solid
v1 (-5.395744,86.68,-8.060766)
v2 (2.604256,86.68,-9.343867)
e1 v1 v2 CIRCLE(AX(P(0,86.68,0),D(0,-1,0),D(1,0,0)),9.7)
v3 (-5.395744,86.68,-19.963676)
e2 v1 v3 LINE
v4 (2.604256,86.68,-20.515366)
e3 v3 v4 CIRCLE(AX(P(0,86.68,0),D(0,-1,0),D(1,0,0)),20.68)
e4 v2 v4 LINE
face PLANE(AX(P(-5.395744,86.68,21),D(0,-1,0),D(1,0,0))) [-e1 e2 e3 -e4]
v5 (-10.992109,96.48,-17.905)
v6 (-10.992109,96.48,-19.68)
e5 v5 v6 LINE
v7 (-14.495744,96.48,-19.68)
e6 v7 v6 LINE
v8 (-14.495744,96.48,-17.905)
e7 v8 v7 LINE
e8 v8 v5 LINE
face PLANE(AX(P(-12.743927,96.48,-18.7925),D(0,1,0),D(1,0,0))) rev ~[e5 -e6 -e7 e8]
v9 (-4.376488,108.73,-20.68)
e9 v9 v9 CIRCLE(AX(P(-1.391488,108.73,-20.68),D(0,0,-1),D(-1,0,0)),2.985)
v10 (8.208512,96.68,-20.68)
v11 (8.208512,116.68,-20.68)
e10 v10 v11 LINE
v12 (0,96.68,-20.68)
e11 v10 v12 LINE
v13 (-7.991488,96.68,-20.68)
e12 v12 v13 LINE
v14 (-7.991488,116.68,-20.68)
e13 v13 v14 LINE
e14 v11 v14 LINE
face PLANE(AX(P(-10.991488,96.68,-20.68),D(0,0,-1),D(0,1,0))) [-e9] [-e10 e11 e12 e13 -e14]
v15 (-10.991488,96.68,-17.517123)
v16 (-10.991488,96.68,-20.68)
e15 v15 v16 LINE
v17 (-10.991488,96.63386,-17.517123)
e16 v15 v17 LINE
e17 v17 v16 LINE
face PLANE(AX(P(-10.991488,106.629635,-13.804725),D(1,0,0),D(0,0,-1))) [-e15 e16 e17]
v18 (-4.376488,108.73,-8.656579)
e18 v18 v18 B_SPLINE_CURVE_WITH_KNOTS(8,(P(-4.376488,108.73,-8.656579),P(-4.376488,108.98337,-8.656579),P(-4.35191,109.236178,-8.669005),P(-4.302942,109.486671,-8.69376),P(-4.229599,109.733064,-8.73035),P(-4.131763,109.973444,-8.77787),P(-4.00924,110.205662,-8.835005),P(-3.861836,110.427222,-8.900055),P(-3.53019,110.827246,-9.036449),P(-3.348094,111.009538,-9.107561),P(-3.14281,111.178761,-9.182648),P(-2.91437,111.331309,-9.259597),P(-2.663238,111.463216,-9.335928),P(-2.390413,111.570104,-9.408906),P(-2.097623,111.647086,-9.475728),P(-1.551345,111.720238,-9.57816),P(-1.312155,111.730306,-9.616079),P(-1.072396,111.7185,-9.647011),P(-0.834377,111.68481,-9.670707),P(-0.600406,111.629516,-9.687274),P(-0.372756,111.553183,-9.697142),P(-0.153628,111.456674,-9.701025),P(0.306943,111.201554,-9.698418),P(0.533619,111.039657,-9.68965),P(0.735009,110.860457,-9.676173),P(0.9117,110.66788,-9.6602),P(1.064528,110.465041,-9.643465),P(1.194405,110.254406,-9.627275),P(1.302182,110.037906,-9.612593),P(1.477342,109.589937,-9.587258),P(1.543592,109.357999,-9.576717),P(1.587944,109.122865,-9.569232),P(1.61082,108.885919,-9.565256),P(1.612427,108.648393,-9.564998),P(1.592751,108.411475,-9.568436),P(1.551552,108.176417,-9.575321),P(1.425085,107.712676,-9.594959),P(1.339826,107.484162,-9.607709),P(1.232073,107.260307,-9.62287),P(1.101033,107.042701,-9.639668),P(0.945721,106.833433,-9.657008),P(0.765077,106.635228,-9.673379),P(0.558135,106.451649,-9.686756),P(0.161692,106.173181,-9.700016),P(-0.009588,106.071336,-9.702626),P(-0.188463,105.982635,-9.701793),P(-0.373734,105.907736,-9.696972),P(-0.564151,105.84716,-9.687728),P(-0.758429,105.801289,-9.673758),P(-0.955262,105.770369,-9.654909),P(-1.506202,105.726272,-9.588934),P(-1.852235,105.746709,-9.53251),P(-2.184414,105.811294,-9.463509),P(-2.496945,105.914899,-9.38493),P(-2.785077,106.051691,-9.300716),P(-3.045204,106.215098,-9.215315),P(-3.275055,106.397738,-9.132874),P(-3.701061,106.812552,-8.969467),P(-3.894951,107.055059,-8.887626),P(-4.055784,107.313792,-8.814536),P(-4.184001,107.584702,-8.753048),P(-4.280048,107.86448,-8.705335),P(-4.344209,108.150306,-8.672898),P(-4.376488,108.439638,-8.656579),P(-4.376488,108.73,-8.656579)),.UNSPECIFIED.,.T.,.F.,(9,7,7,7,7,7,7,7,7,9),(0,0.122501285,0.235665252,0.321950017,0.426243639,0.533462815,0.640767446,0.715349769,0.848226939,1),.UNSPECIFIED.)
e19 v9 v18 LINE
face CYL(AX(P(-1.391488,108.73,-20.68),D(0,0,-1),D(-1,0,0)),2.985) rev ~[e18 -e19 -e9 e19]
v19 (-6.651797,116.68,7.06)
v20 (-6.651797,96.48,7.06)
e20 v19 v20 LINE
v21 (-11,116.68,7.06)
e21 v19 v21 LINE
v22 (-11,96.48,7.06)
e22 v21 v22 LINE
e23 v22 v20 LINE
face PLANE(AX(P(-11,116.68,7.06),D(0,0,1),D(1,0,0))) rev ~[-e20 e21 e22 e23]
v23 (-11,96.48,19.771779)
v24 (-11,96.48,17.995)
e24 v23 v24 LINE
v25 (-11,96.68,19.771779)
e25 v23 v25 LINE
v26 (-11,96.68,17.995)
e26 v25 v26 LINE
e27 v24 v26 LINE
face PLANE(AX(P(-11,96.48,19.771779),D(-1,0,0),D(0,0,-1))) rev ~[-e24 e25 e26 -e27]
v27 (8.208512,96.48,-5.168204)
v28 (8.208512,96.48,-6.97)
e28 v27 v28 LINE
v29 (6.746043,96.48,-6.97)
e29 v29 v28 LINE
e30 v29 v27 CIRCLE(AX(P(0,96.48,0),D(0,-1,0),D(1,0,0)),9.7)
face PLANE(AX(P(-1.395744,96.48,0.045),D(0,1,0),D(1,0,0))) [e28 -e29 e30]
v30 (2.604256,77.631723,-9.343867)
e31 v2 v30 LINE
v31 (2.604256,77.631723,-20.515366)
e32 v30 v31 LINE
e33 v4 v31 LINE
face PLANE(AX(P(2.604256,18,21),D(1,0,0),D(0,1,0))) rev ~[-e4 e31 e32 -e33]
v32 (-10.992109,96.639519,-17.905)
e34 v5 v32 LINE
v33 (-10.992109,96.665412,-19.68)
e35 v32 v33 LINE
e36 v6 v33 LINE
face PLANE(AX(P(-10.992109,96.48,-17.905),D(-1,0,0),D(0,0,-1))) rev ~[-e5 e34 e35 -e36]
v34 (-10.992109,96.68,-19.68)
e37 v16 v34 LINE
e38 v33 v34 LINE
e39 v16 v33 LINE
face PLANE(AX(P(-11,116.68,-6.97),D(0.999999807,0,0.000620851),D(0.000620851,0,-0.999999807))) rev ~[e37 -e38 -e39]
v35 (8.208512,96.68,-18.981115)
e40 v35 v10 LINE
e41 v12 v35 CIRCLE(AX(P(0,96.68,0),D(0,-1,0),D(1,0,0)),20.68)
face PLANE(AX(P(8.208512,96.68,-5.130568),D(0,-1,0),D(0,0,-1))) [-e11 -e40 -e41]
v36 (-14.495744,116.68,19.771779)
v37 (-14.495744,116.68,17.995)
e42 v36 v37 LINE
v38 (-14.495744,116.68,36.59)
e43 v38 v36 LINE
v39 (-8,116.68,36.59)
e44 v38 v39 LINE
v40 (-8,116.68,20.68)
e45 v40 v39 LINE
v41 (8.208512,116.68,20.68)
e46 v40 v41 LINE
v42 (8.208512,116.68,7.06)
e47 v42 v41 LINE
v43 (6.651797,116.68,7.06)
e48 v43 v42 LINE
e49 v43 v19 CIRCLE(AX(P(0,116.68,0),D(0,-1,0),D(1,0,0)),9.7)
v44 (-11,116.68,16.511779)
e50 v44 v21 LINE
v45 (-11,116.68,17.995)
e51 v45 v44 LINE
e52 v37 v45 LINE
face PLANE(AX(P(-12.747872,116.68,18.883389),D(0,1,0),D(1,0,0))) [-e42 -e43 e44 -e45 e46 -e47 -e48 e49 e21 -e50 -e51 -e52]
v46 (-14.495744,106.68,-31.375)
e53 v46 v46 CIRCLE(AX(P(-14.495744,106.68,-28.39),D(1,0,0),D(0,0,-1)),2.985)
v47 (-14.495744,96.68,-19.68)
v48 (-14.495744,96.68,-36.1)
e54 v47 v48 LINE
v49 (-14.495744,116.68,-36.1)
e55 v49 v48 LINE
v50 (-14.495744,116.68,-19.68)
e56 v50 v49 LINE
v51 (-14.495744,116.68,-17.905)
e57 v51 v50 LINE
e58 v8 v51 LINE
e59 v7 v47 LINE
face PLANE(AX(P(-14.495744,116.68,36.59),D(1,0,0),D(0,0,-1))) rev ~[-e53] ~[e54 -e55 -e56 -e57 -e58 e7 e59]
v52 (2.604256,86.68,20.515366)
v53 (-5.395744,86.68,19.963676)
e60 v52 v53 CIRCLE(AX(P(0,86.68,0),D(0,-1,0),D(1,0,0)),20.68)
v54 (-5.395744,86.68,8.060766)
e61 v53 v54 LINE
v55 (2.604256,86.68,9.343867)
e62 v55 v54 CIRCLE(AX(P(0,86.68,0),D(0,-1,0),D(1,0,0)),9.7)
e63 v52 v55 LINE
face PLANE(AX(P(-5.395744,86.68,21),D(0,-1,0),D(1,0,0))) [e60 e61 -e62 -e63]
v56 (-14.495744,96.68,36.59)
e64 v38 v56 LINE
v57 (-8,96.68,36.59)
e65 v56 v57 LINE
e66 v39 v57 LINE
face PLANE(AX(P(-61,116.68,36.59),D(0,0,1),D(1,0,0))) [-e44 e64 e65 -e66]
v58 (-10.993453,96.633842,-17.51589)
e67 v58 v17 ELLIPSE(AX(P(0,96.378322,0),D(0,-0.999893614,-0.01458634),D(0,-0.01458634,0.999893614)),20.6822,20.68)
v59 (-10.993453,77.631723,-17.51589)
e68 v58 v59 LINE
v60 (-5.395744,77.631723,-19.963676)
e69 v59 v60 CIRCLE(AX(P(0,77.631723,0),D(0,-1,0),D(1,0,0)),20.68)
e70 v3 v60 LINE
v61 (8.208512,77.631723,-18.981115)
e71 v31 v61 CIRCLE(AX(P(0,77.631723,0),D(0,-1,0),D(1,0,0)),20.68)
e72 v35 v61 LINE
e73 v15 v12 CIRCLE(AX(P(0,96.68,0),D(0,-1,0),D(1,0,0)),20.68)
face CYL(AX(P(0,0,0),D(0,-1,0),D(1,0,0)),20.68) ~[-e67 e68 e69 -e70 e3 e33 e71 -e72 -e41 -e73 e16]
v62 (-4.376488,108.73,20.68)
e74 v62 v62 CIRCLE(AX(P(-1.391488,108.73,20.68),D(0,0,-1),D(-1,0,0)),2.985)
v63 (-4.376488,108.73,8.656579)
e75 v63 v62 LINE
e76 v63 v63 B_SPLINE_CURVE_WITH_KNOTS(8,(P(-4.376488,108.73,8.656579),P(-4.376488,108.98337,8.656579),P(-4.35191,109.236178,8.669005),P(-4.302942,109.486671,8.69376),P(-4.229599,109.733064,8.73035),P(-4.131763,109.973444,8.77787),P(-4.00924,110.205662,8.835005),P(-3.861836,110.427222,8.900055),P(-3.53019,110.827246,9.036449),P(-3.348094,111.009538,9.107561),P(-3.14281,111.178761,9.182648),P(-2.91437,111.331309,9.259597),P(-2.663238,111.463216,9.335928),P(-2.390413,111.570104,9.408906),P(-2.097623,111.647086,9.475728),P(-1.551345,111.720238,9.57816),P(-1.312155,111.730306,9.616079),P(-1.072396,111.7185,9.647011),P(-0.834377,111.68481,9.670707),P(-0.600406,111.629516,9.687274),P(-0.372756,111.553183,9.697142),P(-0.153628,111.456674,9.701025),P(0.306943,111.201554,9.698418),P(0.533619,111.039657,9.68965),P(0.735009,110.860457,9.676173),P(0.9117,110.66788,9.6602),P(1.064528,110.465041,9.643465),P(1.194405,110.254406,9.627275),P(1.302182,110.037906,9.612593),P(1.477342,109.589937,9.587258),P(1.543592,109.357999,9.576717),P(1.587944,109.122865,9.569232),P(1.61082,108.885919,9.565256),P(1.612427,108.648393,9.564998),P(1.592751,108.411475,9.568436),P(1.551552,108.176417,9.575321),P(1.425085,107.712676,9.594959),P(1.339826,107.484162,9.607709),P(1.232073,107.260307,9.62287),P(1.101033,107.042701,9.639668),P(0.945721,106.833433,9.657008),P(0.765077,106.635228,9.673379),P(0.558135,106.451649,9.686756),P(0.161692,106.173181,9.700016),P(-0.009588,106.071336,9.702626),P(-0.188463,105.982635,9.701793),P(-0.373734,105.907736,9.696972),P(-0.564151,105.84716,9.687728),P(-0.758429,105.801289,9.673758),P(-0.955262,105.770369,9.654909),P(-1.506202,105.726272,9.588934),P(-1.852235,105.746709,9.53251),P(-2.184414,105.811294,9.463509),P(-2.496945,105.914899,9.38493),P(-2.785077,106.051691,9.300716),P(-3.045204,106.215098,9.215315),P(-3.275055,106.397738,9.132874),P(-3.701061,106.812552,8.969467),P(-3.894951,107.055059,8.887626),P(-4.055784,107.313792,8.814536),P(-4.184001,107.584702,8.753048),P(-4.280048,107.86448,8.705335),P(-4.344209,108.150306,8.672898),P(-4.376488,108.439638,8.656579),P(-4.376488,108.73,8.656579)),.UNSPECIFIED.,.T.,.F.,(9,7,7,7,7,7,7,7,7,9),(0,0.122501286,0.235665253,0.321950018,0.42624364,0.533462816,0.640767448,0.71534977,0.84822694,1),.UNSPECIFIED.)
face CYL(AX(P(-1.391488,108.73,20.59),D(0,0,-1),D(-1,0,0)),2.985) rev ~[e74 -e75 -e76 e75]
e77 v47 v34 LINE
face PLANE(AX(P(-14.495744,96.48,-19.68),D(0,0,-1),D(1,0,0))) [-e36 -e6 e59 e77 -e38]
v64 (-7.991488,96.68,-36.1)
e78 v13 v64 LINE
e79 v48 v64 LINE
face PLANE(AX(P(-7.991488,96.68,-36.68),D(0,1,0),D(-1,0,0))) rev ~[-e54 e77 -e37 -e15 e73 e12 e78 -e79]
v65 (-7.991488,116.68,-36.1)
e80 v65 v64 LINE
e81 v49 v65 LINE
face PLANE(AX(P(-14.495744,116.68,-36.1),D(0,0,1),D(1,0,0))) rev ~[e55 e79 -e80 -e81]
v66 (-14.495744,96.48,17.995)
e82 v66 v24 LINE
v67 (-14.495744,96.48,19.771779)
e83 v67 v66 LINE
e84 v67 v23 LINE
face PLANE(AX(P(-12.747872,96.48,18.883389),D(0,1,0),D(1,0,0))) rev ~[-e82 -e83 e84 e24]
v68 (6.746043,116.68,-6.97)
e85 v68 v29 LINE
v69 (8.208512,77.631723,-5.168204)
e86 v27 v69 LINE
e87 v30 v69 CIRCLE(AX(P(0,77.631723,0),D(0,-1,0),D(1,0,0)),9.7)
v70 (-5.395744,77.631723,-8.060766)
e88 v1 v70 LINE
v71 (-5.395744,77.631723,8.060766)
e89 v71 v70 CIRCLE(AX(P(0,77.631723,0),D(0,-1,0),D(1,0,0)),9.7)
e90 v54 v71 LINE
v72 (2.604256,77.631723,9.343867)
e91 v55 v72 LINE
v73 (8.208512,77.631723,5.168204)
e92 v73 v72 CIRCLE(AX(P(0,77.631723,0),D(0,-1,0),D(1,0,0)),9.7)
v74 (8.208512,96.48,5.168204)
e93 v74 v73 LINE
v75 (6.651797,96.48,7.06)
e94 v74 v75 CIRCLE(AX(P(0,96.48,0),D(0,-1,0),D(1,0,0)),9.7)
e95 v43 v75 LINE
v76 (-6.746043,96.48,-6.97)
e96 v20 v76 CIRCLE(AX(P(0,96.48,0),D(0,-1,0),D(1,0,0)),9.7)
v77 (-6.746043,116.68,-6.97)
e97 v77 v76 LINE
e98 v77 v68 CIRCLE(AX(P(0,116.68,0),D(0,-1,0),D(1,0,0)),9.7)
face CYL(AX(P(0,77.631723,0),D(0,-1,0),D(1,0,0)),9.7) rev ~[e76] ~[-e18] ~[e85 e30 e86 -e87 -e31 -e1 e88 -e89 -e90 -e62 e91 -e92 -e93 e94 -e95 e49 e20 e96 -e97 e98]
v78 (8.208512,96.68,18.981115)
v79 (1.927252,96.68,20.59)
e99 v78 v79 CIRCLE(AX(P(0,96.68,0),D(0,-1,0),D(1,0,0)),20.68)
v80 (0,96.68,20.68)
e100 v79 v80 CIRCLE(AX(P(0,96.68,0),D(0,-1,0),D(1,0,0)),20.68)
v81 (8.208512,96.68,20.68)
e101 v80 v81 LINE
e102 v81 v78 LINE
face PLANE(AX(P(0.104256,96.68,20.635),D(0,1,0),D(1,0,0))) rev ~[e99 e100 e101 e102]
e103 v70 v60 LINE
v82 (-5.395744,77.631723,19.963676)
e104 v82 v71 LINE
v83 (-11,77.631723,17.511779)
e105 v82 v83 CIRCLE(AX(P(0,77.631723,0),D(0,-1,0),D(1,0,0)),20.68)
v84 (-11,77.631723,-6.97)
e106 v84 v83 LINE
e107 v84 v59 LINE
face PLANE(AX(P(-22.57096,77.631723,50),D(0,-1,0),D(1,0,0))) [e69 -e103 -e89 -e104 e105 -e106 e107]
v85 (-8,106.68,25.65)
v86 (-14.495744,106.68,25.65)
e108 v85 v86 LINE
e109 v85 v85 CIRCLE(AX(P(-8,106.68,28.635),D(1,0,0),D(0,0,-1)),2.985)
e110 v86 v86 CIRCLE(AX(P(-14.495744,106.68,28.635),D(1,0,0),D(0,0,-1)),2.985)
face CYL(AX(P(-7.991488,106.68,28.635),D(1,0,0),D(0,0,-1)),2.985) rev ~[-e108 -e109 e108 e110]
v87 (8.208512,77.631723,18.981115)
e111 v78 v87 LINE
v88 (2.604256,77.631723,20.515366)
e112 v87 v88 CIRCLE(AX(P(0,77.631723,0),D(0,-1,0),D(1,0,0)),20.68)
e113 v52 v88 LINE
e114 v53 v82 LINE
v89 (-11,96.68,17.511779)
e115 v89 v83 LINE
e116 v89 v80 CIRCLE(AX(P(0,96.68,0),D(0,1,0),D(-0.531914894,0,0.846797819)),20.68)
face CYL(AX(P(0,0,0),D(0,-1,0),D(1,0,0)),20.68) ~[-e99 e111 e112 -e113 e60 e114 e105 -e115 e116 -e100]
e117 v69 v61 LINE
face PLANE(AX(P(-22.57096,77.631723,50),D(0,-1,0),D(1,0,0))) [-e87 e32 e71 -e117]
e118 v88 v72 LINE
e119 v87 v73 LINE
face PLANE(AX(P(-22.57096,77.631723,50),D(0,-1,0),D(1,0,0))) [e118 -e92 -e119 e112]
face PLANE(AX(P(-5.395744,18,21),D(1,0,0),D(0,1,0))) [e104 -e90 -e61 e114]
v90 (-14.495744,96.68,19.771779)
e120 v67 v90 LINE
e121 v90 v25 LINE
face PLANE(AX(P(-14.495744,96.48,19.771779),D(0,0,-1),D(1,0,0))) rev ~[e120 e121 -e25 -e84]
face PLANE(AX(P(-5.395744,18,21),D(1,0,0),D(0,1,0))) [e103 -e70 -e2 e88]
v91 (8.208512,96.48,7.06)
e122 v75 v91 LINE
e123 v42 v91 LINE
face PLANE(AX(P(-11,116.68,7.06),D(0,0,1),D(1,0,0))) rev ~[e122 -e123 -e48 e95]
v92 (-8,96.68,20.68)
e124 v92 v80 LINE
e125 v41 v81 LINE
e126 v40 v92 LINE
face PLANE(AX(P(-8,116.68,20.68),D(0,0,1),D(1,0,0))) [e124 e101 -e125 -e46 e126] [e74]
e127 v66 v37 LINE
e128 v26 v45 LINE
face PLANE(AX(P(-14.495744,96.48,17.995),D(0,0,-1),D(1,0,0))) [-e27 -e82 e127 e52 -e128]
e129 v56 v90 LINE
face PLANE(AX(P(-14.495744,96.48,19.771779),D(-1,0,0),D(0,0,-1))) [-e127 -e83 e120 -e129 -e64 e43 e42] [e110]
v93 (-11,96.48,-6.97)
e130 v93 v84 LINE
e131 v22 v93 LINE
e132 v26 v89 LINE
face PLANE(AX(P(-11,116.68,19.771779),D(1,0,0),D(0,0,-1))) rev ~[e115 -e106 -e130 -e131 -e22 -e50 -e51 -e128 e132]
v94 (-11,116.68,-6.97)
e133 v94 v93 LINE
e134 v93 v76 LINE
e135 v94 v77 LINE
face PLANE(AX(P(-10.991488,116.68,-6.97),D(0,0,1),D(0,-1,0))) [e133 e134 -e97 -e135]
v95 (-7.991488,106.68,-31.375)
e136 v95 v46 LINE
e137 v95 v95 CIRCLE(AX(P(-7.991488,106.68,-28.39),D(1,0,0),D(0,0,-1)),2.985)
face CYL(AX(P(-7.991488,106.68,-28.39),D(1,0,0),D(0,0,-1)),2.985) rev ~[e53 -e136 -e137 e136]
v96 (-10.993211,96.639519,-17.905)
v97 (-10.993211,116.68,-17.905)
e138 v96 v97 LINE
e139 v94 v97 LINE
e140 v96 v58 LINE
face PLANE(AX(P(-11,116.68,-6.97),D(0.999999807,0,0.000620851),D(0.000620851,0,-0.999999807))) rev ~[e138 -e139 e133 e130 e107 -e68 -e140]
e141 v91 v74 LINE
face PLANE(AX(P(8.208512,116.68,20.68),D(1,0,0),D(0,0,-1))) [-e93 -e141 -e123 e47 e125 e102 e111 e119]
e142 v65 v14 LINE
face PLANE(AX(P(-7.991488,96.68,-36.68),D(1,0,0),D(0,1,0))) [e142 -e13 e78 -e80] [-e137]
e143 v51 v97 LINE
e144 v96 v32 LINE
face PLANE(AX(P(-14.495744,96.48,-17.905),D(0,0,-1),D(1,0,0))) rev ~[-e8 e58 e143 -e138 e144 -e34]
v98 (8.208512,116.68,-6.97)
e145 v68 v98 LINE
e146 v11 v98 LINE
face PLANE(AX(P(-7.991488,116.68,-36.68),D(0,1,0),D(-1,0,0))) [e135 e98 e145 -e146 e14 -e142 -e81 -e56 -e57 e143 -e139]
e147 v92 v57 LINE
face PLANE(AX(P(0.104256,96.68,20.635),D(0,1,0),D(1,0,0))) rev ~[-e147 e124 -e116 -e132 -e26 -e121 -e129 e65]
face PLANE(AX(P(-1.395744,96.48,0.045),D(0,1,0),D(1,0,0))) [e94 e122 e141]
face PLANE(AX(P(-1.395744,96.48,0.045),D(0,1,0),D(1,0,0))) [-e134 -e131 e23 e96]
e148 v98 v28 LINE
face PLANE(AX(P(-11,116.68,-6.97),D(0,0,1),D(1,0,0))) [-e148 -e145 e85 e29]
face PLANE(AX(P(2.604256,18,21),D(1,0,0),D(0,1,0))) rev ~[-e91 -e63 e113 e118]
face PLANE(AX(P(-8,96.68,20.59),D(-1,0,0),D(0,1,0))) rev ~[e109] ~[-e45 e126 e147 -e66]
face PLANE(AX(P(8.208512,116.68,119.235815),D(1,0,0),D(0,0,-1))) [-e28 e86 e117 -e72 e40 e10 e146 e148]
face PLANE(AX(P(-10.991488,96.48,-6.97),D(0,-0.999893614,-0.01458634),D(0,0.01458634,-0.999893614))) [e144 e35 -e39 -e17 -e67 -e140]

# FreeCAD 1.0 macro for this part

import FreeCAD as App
import Part
import Sketcher

V = App.Vector
Q = App.Units.Quantity


def add_polygon(sketch, points):
    """Adds a closed chain of lines whose ends are joined by coincident constraints."""
    first, n = sketch.GeometryCount, len(points)
    for a, b in zip(points, points[1:] + points[:1]):
        sketch.addGeometry(Part.LineSegment(App.Vector(*a, 0), App.Vector(*b, 0)), False)
    for i in range(n):
        sketch.addConstraint(Sketcher.Constraint("Coincident", first + i, 2, first + (i + 1) % n, 1))

doc = App.newDocument("Part")
body = doc.addObject("PartDesign::Body", "Body")

# Sketch on XZ plane
sketch1 = body.newObject("Sketcher::SketchObject", "Sketch")
sketch1.AttachmentSupport = (doc.getObject("XZ_Plane"), [""])
sketch1.MapMode = "FlatFace"
sketch1.addGeometry([
    Part.Circle(V(0, 0, 0), V(0, 0, 1), 21),
    Part.Circle(V(0, 0, 0), V(0, 0, 1), 10),
], False)
sketch1.addConstraint([
    Sketcher.Constraint("Coincident", 0, 3, -1, 1),
    Sketcher.Constraint("Coincident", 1, 3, -1, 1),
    Sketcher.Constraint("Diameter", 0, Q("41.36 mm")),
    Sketcher.Constraint("Diameter", 1, Q("19.36 mm")),
])
pad1 = body.newObject("PartDesign::Pad", "Pad")
pad1.Profile = sketch1
pad1.Length = 116.68
pad1.Reversed = True

# Sketch on XZ plane
sketch2 = body.newObject("Sketcher::SketchObject", "Sketch001")
sketch2.AttachmentSupport = (doc.getObject("XZ_Plane"), [""])
sketch2.MapMode = "FlatFace"
sketch2.AttachmentOffset = App.Placement(V(0, 0, -116.68), App.Rotation())
add_polygon(sketch2, [(8, -31), (8, 119), (35, 119), (35, -31)])  # lines 0-3
sketch2.addConstraint([
    Sketcher.Constraint("Vertical", 0),
    Sketcher.Constraint("Horizontal", 1),
    Sketcher.Constraint("Vertical", 2),
    Sketcher.Constraint("Horizontal", 3),
    Sketcher.Constraint("DistanceX", 1, 1, 1, 2, Q("27 mm")),
    Sketcher.Constraint("DistanceY", 0, 1, 0, 2, Q("150 mm")),
    Sketcher.Constraint("DistanceX", -1, 1, 0, 2, Q("8.208512 mm")),
    Sketcher.Constraint("DistanceY", -1, 1, 0, 2, Q("119.235815 mm")),
])
pocket1 = body.newObject("PartDesign::Pocket", "Pocket")
pocket1.Profile = sketch2
pocket1.Length = 40
pocket1.Reversed = True

# Sketch on XY plane
sketch3 = body.newObject("Sketcher::SketchObject", "Sketch002")
sketch3.AttachmentSupport = (doc.getObject("XY_Plane"), [""])
sketch3.MapMode = "FlatFace"
sketch3.AttachmentOffset = App.Placement(V(0, 0, 21), App.Rotation())
add_polygon(sketch3, [(-21, 123), (-21, -6), (-11, -6), (-11, 123)])  # lines 0-3
sketch3.addConstraint([
    Sketcher.Constraint("Vertical", 0),
    Sketcher.Constraint("Horizontal", 1),
    Sketcher.Constraint("Vertical", 2),
    Sketcher.Constraint("Horizontal", 3),
    Sketcher.Constraint("DistanceX", 1, 1, 1, 2, Q("10 mm")),
    Sketcher.Constraint("DistanceX", 0, 2, -1, 1, Q("21 mm")),
    Sketcher.Constraint("DistanceY", 0, 2, 0, 1, Q("128.345013 mm")),
    Sketcher.Constraint("DistanceY", -1, 1, 2, 2, Q("122.784689 mm")),
])
pocket2 = body.newObject("PartDesign::Pocket", "Pocket001")
pocket2.Profile = sketch3
pocket2.Type = "ThroughAll"

# Sketch on XY plane
sketch4 = body.newObject("Sketcher::SketchObject", "Sketch003")
sketch4.AttachmentSupport = (doc.getObject("XY_Plane"), [""])
sketch4.MapMode = "FlatFace"
sketch4.AttachmentOffset = App.Placement(V(0, 0, 21), App.Rotation())
add_polygon(sketch4, [(-5, 87), (-5, 18), (3, 18), (3, 87)])  # lines 0-3
sketch4.addConstraint([
    Sketcher.Constraint("Vertical", 0),
    Sketcher.Constraint("Horizontal", 1),
    Sketcher.Constraint("Vertical", 2),
    Sketcher.Constraint("Horizontal", 3),
    Sketcher.Constraint("DistanceX", 1, 1, 1, 2, Q("8 mm")),
    Sketcher.Constraint("DistanceY", -1, 1, 0, 2, Q("18 mm")),
    Sketcher.Constraint("DistanceY", 0, 2, 0, 1, Q("68.68 mm")),
    Sketcher.Constraint("DistanceX", 0, 2, -1, 1, Q("5.395744 mm")),
])
pocket3 = body.newObject("PartDesign::Pocket", "Pocket002")
pocket3.Profile = sketch4
pocket3.Length = 48

# Sketch on YZ plane
sketch5 = body.newObject("Sketcher::SketchObject", "Sketch004")
sketch5.AttachmentSupport = (doc.getObject("YZ_Plane"), [""])
sketch5.MapMode = "FlatFace"
sketch5.AttachmentOffset = App.Placement(V(0, 0, 8.208512), App.Rotation())
add_polygon(sketch5, [(117, -5), (97, -5), (97, -21), (117, -21)])  # lines 0-3
add_polygon(sketch5, [(117, 21), (97, 21), (97, 5), (117, 5)])  # lines 4-7
sketch5.addConstraint([
    Sketcher.Constraint("Horizontal", 0),
    Sketcher.Constraint("Vertical", 1),
    Sketcher.Constraint("Horizontal", 2),
    Sketcher.Constraint("Vertical", 3),
    Sketcher.Constraint("Horizontal", 4),
    Sketcher.Constraint("Vertical", 5),
    Sketcher.Constraint("Horizontal", 6),
    Sketcher.Constraint("Vertical", 7),
    Sketcher.Constraint("Symmetric", 0, 2, 5, 2, -1),
    Sketcher.Constraint("Vertical", 3, 2, 6, 2),
    Sketcher.Constraint("DistanceX", 0, 2, 0, 1, Q("20 mm")),
    Sketcher.Constraint("DistanceX", -1, 1, 0, 2, Q("96.68 mm")),
    Sketcher.Constraint("DistanceY", 1, 2, -1, 1, Q("20.68 mm")),
    Sketcher.Constraint("DistanceY", -1, 1, 4, 2, Q("20.59 mm")),
    Sketcher.Constraint("DistanceY", 1, 2, 1, 1, Q("15.549432 mm")),
])
pad2 = body.newObject("PartDesign::Pad", "Pad001")
pad2.Profile = sketch5
pad2.Length = 19.2
pad2.Reversed = True

# Sketch on XZ plane
sketch6 = body.newObject("Sketcher::SketchObject", "Sketch005")
sketch6.AttachmentSupport = (doc.getObject("XZ_Plane"), [""])
sketch6.MapMode = "FlatFace"
sketch6.AttachmentOffset = App.Placement(V(0, 0, -116.68), App.Rotation())
add_polygon(sketch6, [(-11, -7), (-11, 7), (8, 7), (8, -7)])  # lines 0-3
sketch6.addConstraint([
    Sketcher.Constraint("Vertical", 0),
    Sketcher.Constraint("Horizontal", 1),
    Sketcher.Constraint("Vertical", 2),
    Sketcher.Constraint("Horizontal", 3),
    Sketcher.Constraint("DistanceX", 0, 2, -1, 1, Q("11 mm")),
    Sketcher.Constraint("DistanceY", 0, 1, 0, 2, Q("14.03 mm")),
    Sketcher.Constraint("DistanceY", -1, 1, 0, 2, Q("7.06 mm")),
    Sketcher.Constraint("DistanceX", 1, 1, 1, 2, Q("19.208512 mm")),
])
pocket4 = body.newObject("PartDesign::Pocket", "Pocket003")
pocket4.Profile = sketch6
pocket4.Length = 20.2
pocket4.Reversed = True

# Sketch on XZ plane
sketch7 = body.newObject("Sketcher::SketchObject", "Sketch006")
sketch7.AttachmentSupport = (doc.getObject("XZ_Plane"), [""])
sketch7.MapMode = "FlatFace"
sketch7.addGeometry(Part.Circle(V(0, 0, 0), V(0, 0, 1), 10), False)
sketch7.addConstraint([
    Sketcher.Constraint("Coincident", 0, 3, -1, 1),
    Sketcher.Constraint("Diameter", 0, Q("19.18 mm")),
])
pocket5 = body.newObject("PartDesign::Pocket", "Pocket004")
pocket5.Profile = sketch7
pocket5.Type = "ThroughAll"

# Sketch on XY plane
sketch8 = body.newObject("Sketcher::SketchObject", "Sketch007")
sketch8.AttachmentSupport = (doc.getObject("XY_Plane"), [""])
sketch8.MapMode = "FlatFace"
sketch8.AttachmentOffset = App.Placement(V(0, 0, -20.68), App.Rotation())
sketch8.addGeometry(Part.Circle(V(-1.4, 108.7, 0), V(0, 0, 1), 3), False)
sketch8.addConstraint([
    Sketcher.Constraint("Diameter", 0, Q("5.97 mm")),
    Sketcher.Constraint("DistanceY", -1, 1, 0, 3, Q("108.73 mm")),
    Sketcher.Constraint("DistanceX", 0, 3, -1, 1, Q("1.391488 mm")),
])
pocket6 = body.newObject("PartDesign::Pocket", "Pocket005")
pocket6.Profile = sketch8
pocket6.Length = 55.2
pocket6.Reversed = True

# Sketch on XZ plane
sketch9 = body.newObject("Sketcher::SketchObject", "Sketch008")
sketch9.AttachmentSupport = (doc.getObject("XZ_Plane"), [""])
sketch9.MapMode = "FlatFace"
sketch9.AttachmentOffset = App.Placement(V(0, 0, 55.2), App.Rotation())
sketch9.addGeometry([
    Part.Circle(V(0, 0, 0), V(0, 0, 1), 21),
    Part.Circle(V(0, 0, 0), V(0, 0, 1), 10),
], False)
sketch9.addConstraint([
    Sketcher.Constraint("Coincident", 0, 3, -1, 1),
    Sketcher.Constraint("Coincident", 1, 3, -1, 1),
    Sketcher.Constraint("Diameter", 0, Q("41.18 mm")),
    Sketcher.Constraint("Diameter", 1, Q("19.18 mm")),
])
pad3 = body.newObject("PartDesign::Pad", "Pad002")
pad3.Profile = sketch9
pad3.Length = 55.2
pad3.Reversed = True

# Sketch on XY plane
sketch10 = body.newObject("Sketcher::SketchObject", "Sketch009")
sketch10.AttachmentSupport = (doc.getObject("XY_Plane"), [""])
sketch10.MapMode = "FlatFace"
sketch10.AttachmentOffset = App.Placement(V(0, 0, 21), App.Rotation())
add_polygon(sketch10, [(23, -12), (-23, -12), (-23, -64), (23, -64)])  # lines 0-3
sketch10.addConstraint([
    Sketcher.Constraint("Horizontal", 0),
    Sketcher.Constraint("Vertical", 1),
    Sketcher.Constraint("Horizontal", 2),
    Sketcher.Constraint("Vertical", 3),
    Sketcher.Constraint("DistanceY", 0, 2, -1, 1, Q("11.785 mm")),
    Sketcher.Constraint("DistanceX", 0, 2, 0, 1, Q("45.361905 mm")),
    Sketcher.Constraint("DistanceY", 1, 2, 1, 1, Q("52.088337 mm")),
    Sketcher.Constraint("DistanceX", -1, 1, 2, 2, Q("22.61238 mm")),
])
pocket7 = body.newObject("PartDesign::Pocket", "Pocket006")
pocket7.Profile = sketch10
pocket7.Length = 55.2

# Sketch on XZ plane
sketch11 = body.newObject("Sketcher::SketchObject", "Sketch010")
sketch11.AttachmentSupport = (doc.getObject("XZ_Plane"), [""])
sketch11.MapMode = "FlatFace"
add_polygon(sketch11, [(-21, -21), (-21, 21), (-11, 21), (-11, -21)])  # lines 0-3
sketch11.addConstraint([
    Sketcher.Constraint("Vertical", 0),
    Sketcher.Constraint("Horizontal", 1),
    Sketcher.Constraint("Vertical", 2),
    Sketcher.Constraint("Horizontal", 3),
    Sketcher.Constraint("DistanceX", 0, 2, -1, 1, Q("21 mm")),
    Sketcher.Constraint("DistanceY", -1, 1, 0, 2, Q("21 mm")),
    Sketcher.Constraint("DistanceY", 0, 1, 0, 2, Q("41.68 mm")),
    Sketcher.Constraint("DistanceX", 1, 1, 1, 2, Q("10.008512 mm")),
])
pocket8 = body.newObject("PartDesign::Pocket", "Pocket007")
pocket8.Profile = sketch11
pocket8.Length = 55.2
pocket8.Reversed = True

# Sketch on YZ plane
sketch12 = body.newObject("Sketcher::SketchObject", "Sketch011")
sketch12.AttachmentSupport = (doc.getObject("YZ_Plane"), [""])
sketch12.MapMode = "FlatFace"
sketch12.AttachmentOffset = App.Placement(V(0, 0, 21), App.Rotation())
add_polygon(sketch12, [(62, 5), (22, 5), (22, -5), (62, -5)])  # lines 0-3
sketch12.addConstraint([
    Sketcher.Constraint("Horizontal", 0),
    Sketcher.Constraint("Vertical", 1),
    Sketcher.Constraint("Horizontal", 2),
    Sketcher.Constraint("Vertical", 3),
    Sketcher.Constraint("DistanceX", 0, 2, 0, 1, Q("40 mm")),
    Sketcher.Constraint("DistanceY", 1, 2, 1, 1, Q("10 mm")),
    Sketcher.Constraint("DistanceY", -1, 1, 0, 2, Q("5 mm")),
    Sketcher.Constraint("DistanceX", -1, 1, 0, 2, Q("21.68 mm")),
])
pocket9 = body.newObject("PartDesign::Pocket", "Pocket008")
pocket9.Profile = sketch12
pocket9.Length = 55.2

# Sketch on YZ plane
sketch13 = body.newObject("Sketcher::SketchObject", "Sketch012")
sketch13.AttachmentSupport = (doc.getObject("YZ_Plane"), [""])
sketch13.MapMode = "FlatFace"
sketch13.AttachmentOffset = App.Placement(V(0, 0, 21), App.Rotation())
add_polygon(sketch13, [(5, 22), (-5, 22), (-5, -22), (5, -22)])  # lines 0-3
sketch13.addConstraint([
    Sketcher.Constraint("Horizontal", 0),
    Sketcher.Constraint("Vertical", 1),
    Sketcher.Constraint("Horizontal", 2),
    Sketcher.Constraint("Vertical", 3),
    Sketcher.Constraint("Symmetric", 0, 2, 2, 2, -1, 1),
    Sketcher.Constraint("DistanceX", 0, 2, 0, 1, Q("9.608044 mm")),
    Sketcher.Constraint("DistanceY", 1, 2, 1, 1, Q("44.880695 mm")),
])
pocket10 = body.newObject("PartDesign::Pocket", "Pocket009")
pocket10.Profile = sketch13
pocket10.Length = 12.2

# Sketch on YZ plane
sketch14 = body.newObject("Sketcher::SketchObject", "Sketch013")
sketch14.AttachmentSupport = (doc.getObject("YZ_Plane"), [""])
sketch14.MapMode = "FlatFace"
sketch14.AttachmentOffset = App.Placement(V(0, 0, -10.991488), App.Rotation())
add_polygon(sketch14, [(117, 7), (97, 7), (97, 21), (117, 21)])  # lines 0-3
sketch14.addConstraint([
    Sketcher.Constraint("Horizontal", 0),
    Sketcher.Constraint("Vertical", 1),
    Sketcher.Constraint("Horizontal", 2),
    Sketcher.Constraint("Vertical", 3),
    Sketcher.Constraint("DistanceX", 0, 2, 0, 1, Q("20 mm")),
    Sketcher.Constraint("DistanceY", 1, 1, 1, 2, Q("13.53 mm")),
    Sketcher.Constraint("DistanceX", -1, 1, 0, 2, Q("96.68 mm")),
    Sketcher.Constraint("DistanceY", -1, 1, 0, 2, Q("7.06 mm")),
])
pad4 = body.newObject("PartDesign::Pad", "Pad003")
pad4.Profile = sketch14
pad4.Length = 15
pad4.Reversed = True

# Sketch on YZ plane
sketch15 = body.newObject("Sketcher::SketchObject", "Sketch014")
sketch15.AttachmentSupport = (doc.getObject("YZ_Plane"), [""])
sketch15.MapMode = "FlatFace"
sketch15.AttachmentOffset = App.Placement(V(0, 0, -10.991488), App.Rotation())
add_polygon(sketch15, [(117, -7), (117, -21), (97, -21), (96, -7)])  # lines 0-3
sketch15.addConstraint([
    Sketcher.Constraint("Vertical", 0),
    Sketcher.Constraint("Horizontal", 1),
    Sketcher.Constraint("Horizontal", 3),
    Sketcher.Constraint("DistanceX", 1, 2, 1, 1, Q("20 mm")),
    Sketcher.Constraint("DistanceX", 3, 1, 3, 2, Q("20.2 mm")),
    Sketcher.Constraint("DistanceY", 0, 2, 0, 1, Q("13.71 mm")),
    Sketcher.Constraint("DistanceX", -1, 1, 0, 2, Q("116.68 mm")),
    Sketcher.Constraint("DistanceY", 0, 2, -1, 1, Q("20.68 mm")),
])
pad5 = body.newObject("PartDesign::Pad", "Pad004")
pad5.Profile = sketch15
pad5.Length = 15
pad5.Reversed = True

# Sketch on XY plane
sketch16 = body.newObject("Sketcher::SketchObject", "Sketch015")
sketch16.AttachmentSupport = (doc.getObject("XY_Plane"), [""])
sketch16.MapMode = "FlatFace"
sketch16.AttachmentOffset = App.Placement(V(0, 0, 20.59), App.Rotation())
add_polygon(sketch16, [(-26, 117), (-26, 97), (-17, 97), (-17, 117)])  # lines 0-3
sketch16.addConstraint([
    Sketcher.Constraint("Vertical", 0),
    Sketcher.Constraint("Horizontal", 1),
    Sketcher.Constraint("Vertical", 2),
    Sketcher.Constraint("Horizontal", 3),
    Sketcher.Constraint("DistanceX", 1, 1, 1, 2, Q("9 mm")),
    Sketcher.Constraint("DistanceY", 0, 2, 0, 1, Q("20 mm")),
    Sketcher.Constraint("DistanceY", -1, 1, 0, 2, Q("96.68 mm")),
    Sketcher.Constraint("DistanceX", 0, 2, -1, 1, Q("25.991488 mm")),
])
pad6 = body.newObject("PartDesign::Pad", "Pad005")
pad6.Profile = sketch16
pad6.Length = 20

# Sketch on XY plane
sketch17 = body.newObject("Sketcher::SketchObject", "Sketch016")
sketch17.AttachmentSupport = (doc.getObject("XY_Plane"), [""])
sketch17.MapMode = "FlatFace"
sketch17.AttachmentOffset = App.Placement(V(0, 0, -20.68), App.Rotation())
add_polygon(sketch17, [(-17, 117), (-17, 97), (-26, 97), (-26, 117)])  # lines 0-3
sketch17.addConstraint([
    Sketcher.Constraint("Vertical", 0),
    Sketcher.Constraint("Horizontal", 1),
    Sketcher.Constraint("Vertical", 2),
    Sketcher.Constraint("Horizontal", 3),
    Sketcher.Constraint("DistanceX", 1, 2, 1, 1, Q("9 mm")),
    Sketcher.Constraint("DistanceY", 0, 2, 0, 1, Q("20 mm")),
    Sketcher.Constraint("DistanceY", -1, 1, 0, 2, Q("96.68 mm")),
    Sketcher.Constraint("DistanceX", 0, 2, -1, 1, Q("16.991488 mm")),
])
pad7 = body.newObject("PartDesign::Pad", "Pad006")
pad7.Profile = sketch17
pad7.Length = 20
pad7.Reversed = True

# Sketch on YZ plane
sketch18 = body.newObject("Sketcher::SketchObject", "Sketch017")
sketch18.AttachmentSupport = (doc.getObject("YZ_Plane"), [""])
sketch18.MapMode = "FlatFace"
sketch18.AttachmentOffset = App.Placement(V(0, 0, -16.991488), App.Rotation())
sketch18.addGeometry([
    Part.Circle(V(106.6, -30.7, 0), V(0, 0, 1), 3),
    Part.Circle(V(106.7, 30.4, 0), V(0, 0, 1), 3),
], False)
sketch18.addConstraint([
    Sketcher.Constraint("Equal", 0, 1),
    Sketcher.Constraint("Diameter", 0, Q("5.97 mm")),
    Sketcher.Constraint("DistanceY", 0, 3, -1, 1, Q("30.68 mm")),
    Sketcher.Constraint("DistanceX", -1, 1, 1, 3, Q("106.68 mm")),
    Sketcher.Constraint("DistanceX", -1, 1, 0, 3, Q("106.554418 mm")),
    Sketcher.Constraint("DistanceY", -1, 1, 1, 3, Q("30.39564 mm")),
])
pocket11 = body.newObject("PartDesign::Pocket", "Pocket010")
pocket11.Profile = sketch18
pocket11.Length = 20

# Sketch on XZ plane
sketch19 = body.newObject("Sketcher::SketchObject", "Sketch018")
sketch19.AttachmentSupport = (doc.getObject("XZ_Plane"), [""])
sketch19.MapMode = "FlatFace"
sketch19.AttachmentOffset = App.Placement(V(0, 0, -116.68), App.Rotation())
add_polygon(sketch19, [(-11, -7), (-11, -21), (-11, -48), (-28, -48), (-28, 43), (-11, 43)])  # lines 0-5
sketch19.addConstraint([
    Sketcher.Constraint("Vertical", 1),
    Sketcher.Constraint("Horizontal", 2),
    Sketcher.Constraint("Vertical", 3),
    Sketcher.Constraint("Horizontal", 4),
    Sketcher.Constraint("Vertical", 5),
    Sketcher.Constraint("DistanceX", 4, 2, -1, 1, Q("11 mm")),
    Sketcher.Constraint("DistanceY", 0, 2, -1, 1, Q("20.68 mm")),
    Sketcher.Constraint("DistanceY", 5, 2, -1, 1, Q("6.97 mm")),
    Sketcher.Constraint("DistanceY", 3, 1, 3, 2, Q("91.367301 mm")),
    Sketcher.Constraint("DistanceX", 2, 2, 2, 1, Q("17.283268 mm")),
    Sketcher.Constraint("DistanceX", 4, 1, 4, 2, Q("17.274756 mm")),
    Sketcher.Constraint("DistanceY", 1, 2, 1, 1, Q("27.416794 mm")),
])
pocket12 = body.newObject("PartDesign::Pocket", "Pocket011")
pocket12.Profile = sketch19
pocket12.Type = "ThroughAll"
pocket12.Reversed = True

# Sketch on XY plane
sketch20 = body.newObject("Sketcher::SketchObject", "Sketch019")
sketch20.AttachmentSupport = (doc.getObject("XY_Plane"), [""])
sketch20.MapMode = "FlatFace"
sketch20.AttachmentOffset = App.Placement(V(0, 0, 20.59), App.Rotation())
add_polygon(sketch20, [(-11, 116.7), (-11, 96.7), (-8, 96.7), (-8, 116.7)])  # lines 0-3
sketch20.addConstraint([
    Sketcher.Constraint("Vertical", 0),
    Sketcher.Constraint("Horizontal", 1),
    Sketcher.Constraint("Vertical", 2),
    Sketcher.Constraint("Horizontal", 3),
    Sketcher.Constraint("DistanceX", 1, 1, 1, 2, Q("3 mm")),
    Sketcher.Constraint("DistanceY", 0, 2, 0, 1, Q("20 mm")),
    Sketcher.Constraint("DistanceX", 0, 2, -1, 1, Q("11 mm")),
    Sketcher.Constraint("DistanceY", -1, 1, 0, 2, Q("96.68 mm")),
])
pad8 = body.newObject("PartDesign::Pad", "Pad007")
pad8.Profile = sketch20
pad8.Length = 30

# Sketch on XY plane
sketch21 = body.newObject("Sketcher::SketchObject", "Sketch020")
sketch21.AttachmentSupport = (doc.getObject("XY_Plane"), [""])
sketch21.MapMode = "FlatFace"
sketch21.AttachmentOffset = App.Placement(V(0, 0, -20.68), App.Rotation())
add_polygon(sketch21, [(-8, 116.7), (-8, 96.7), (-11, 96.7), (-11, 116.7)])  # lines 0-3
sketch21.addConstraint([
    Sketcher.Constraint("Vertical", 0),
    Sketcher.Constraint("Horizontal", 1),
    Sketcher.Constraint("Vertical", 2),
    Sketcher.Constraint("Horizontal", 3),
    Sketcher.Constraint("DistanceX", 1, 2, 1, 1, Q("3 mm")),
    Sketcher.Constraint("DistanceY", 0, 2, 0, 1, Q("20 mm")),
    Sketcher.Constraint("DistanceY", -1, 1, 0, 2, Q("96.68 mm")),
    Sketcher.Constraint("DistanceX", 0, 2, -1, 1, Q("7.991488 mm")),
])
pad9 = body.newObject("PartDesign::Pad", "Pad008")
pad9.Profile = sketch21
pad9.Length = 30
pad9.Reversed = True

# Sketch on YZ plane
sketch22 = body.newObject("Sketcher::SketchObject", "Sketch021")
sketch22.AttachmentSupport = (doc.getObject("YZ_Plane"), [""])
sketch22.MapMode = "FlatFace"
sketch22.AttachmentOffset = App.Placement(V(0, 0, -11), App.Rotation())
add_polygon(sketch22, [(117, 18), (97, 18), (97, 51), (117, 51)])  # lines 0-3
sketch22.addConstraint([
    Sketcher.Constraint("Horizontal", 0),
    Sketcher.Constraint("Vertical", 1),
    Sketcher.Constraint("Horizontal", 2),
    Sketcher.Constraint("Vertical", 3),
    Sketcher.Constraint("DistanceX", 0, 2, 0, 1, Q("20 mm")),
    Sketcher.Constraint("DistanceX", -1, 1, 0, 2, Q("96.68 mm")),
    Sketcher.Constraint("DistanceY", -1, 1, 1, 2, Q("50.59 mm")),
    Sketcher.Constraint("DistanceY", 1, 1, 1, 2, Q("33.078221 mm")),
])
pad10 = body.newObject("PartDesign::Pad", "Pad009")
pad10.Profile = sketch22
pad10.Length = 50
pad10.Reversed = True

# Sketch on YZ plane
sketch23 = body.newObject("Sketcher::SketchObject", "Sketch022")
sketch23.AttachmentSupport = (doc.getObject("YZ_Plane"), [""])
sketch23.MapMode = "FlatFace"
sketch23.AttachmentOffset = App.Placement(V(0, 0, -10.991488), App.Rotation())
add_polygon(sketch23, [(117, -51), (97, -51), (97, -21), (117, -21)])  # lines 0-3
sketch23.addConstraint([
    Sketcher.Constraint("Horizontal", 0),
    Sketcher.Constraint("Vertical", 1),
    Sketcher.Constraint("Horizontal", 2),
    Sketcher.Constraint("Vertical", 3),
    Sketcher.Constraint("DistanceX", 0, 2, 0, 1, Q("20 mm")),
    Sketcher.Constraint("DistanceY", 1, 1, 1, 2, Q("30 mm")),
    Sketcher.Constraint("DistanceX", -1, 1, 0, 2, Q("96.68 mm")),
    Sketcher.Constraint("DistanceY", 0, 2, -1, 1, Q("50.68 mm")),
])
pad11 = body.newObject("PartDesign::Pad", "Pad010")
pad11.Profile = sketch23
pad11.Length = 50
pad11.Reversed = True

# Sketch on XY plane
sketch24 = body.newObject("Sketcher::SketchObject", "Sketch023")
sketch24.AttachmentSupport = (doc.getObject("XY_Plane"), [""])
sketch24.MapMode = "FlatFace"
sketch24.AttachmentOffset = App.Placement(V(0, 0, 17.511779), App.Rotation())
add_polygon(sketch24, [(-11, 117), (-11, 97), (-61, 97), (-61, 117)])  # lines 0-3
sketch24.addConstraint([
    Sketcher.Constraint("Vertical", 0),
    Sketcher.Constraint("Horizontal", 1),
    Sketcher.Constraint("Vertical", 2),
    Sketcher.Constraint("Horizontal", 3),
    Sketcher.Constraint("DistanceX", 1, 2, 1, 1, Q("50 mm")),
    Sketcher.Constraint("DistanceY", 0, 2, 0, 1, Q("20 mm")),
    Sketcher.Constraint("DistanceX", 0, 2, -1, 1, Q("11 mm")),
    Sketcher.Constraint("DistanceY", -1, 1, 0, 2, Q("96.68 mm")),
])
pad12 = body.newObject("PartDesign::Pad", "Pad011")
pad12.Profile = sketch24
pad12.Length = 1
pad12.Reversed = True

# Sketch on XY plane
sketch25 = body.newObject("Sketcher::SketchObject", "Sketch024")
sketch25.AttachmentSupport = (doc.getObject("XY_Plane"), [""])
sketch25.MapMode = "FlatFace"
sketch25.AttachmentOffset = App.Placement(V(0, 0, -20.68), App.Rotation())
add_polygon(sketch25, [(-61, 117), (-61, 97), (-11, 97), (-11, 117)])  # lines 0-3
sketch25.addConstraint([
    Sketcher.Constraint("Vertical", 0),
    Sketcher.Constraint("Horizontal", 1),
    Sketcher.Constraint("Vertical", 2),
    Sketcher.Constraint("Horizontal", 3),
    Sketcher.Constraint("DistanceX", 1, 1, 1, 2, Q("50 mm")),
    Sketcher.Constraint("DistanceY", 0, 2, 0, 1, Q("20 mm")),
    Sketcher.Constraint("DistanceY", -1, 1, 0, 2, Q("96.68 mm")),
    Sketcher.Constraint("DistanceX", 0, 2, -1, 1, Q("60.991488 mm")),
])
pad13 = body.newObject("PartDesign::Pad", "Pad012")
pad13.Profile = sketch25
pad13.Length = 1

# Sketch on XZ plane
sketch26 = body.newObject("Sketcher::SketchObject", "Sketch025")
sketch26.AttachmentSupport = (doc.getObject("XZ_Plane"), [""])
sketch26.MapMode = "FlatFace"
sketch26.AttachmentOffset = App.Placement(V(0, 0, -116.68), App.Rotation())
add_polygon(sketch26, [(-61, -51), (-61, -37), (-8, -37), (-8, -51)])  # lines 0-3
sketch26.addConstraint([
    Sketcher.Constraint("Vertical", 0),
    Sketcher.Constraint("Horizontal", 1),
    Sketcher.Constraint("Vertical", 2),
    Sketcher.Constraint("Horizontal", 3),
    Sketcher.Constraint("DistanceX", 1, 1, 1, 2, Q("53 mm")),
    Sketcher.Constraint("DistanceY", 0, 1, 0, 2, Q("14 mm")),
    Sketcher.Constraint("DistanceY", 0, 2, -1, 1, Q("36.68 mm")),
    Sketcher.Constraint("DistanceX", 0, 2, -1, 1, Q("60.991488 mm")),
])
pocket13 = body.newObject("PartDesign::Pocket", "Pocket012")
pocket13.Profile = sketch26
pocket13.Type = "ThroughAll"
pocket13.Reversed = True

# Sketch on XZ plane
sketch27 = body.newObject("Sketcher::SketchObject", "Sketch026")
sketch27.AttachmentSupport = (doc.getObject("XZ_Plane"), [""])
sketch27.MapMode = "FlatFace"
sketch27.AttachmentOffset = App.Placement(V(0, 0, -116.68), App.Rotation())
add_polygon(sketch27, [(-61, 37), (-61, 51), (-8, 51), (-8, 37)])  # lines 0-3
sketch27.addConstraint([
    Sketcher.Constraint("Vertical", 0),
    Sketcher.Constraint("Horizontal", 1),
    Sketcher.Constraint("Vertical", 2),
    Sketcher.Constraint("Horizontal", 3),
    Sketcher.Constraint("DistanceX", 1, 1, 1, 2, Q("53 mm")),
    Sketcher.Constraint("DistanceY", 0, 1, 0, 2, Q("14 mm")),
    Sketcher.Constraint("DistanceX", 0, 2, -1, 1, Q("61 mm")),
    Sketcher.Constraint("DistanceY", -1, 1, 0, 2, Q("50.59 mm")),
])
pocket14 = body.newObject("PartDesign::Pocket", "Pocket013")
pocket14.Profile = sketch27
pocket14.Type = "ThroughAll"
pocket14.Reversed = True

# Sketch on XZ plane
sketch28 = body.newObject("Sketcher::SketchObject", "Sketch027")
sketch28.AttachmentSupport = (doc.getObject("XZ_Plane"), [""])
sketch28.MapMode = "FlatFace"
sketch28.AttachmentOffset = App.Placement(V(0, 0, -116.68), App.Rotation())
add_polygon(sketch28, [(-61, -37), (-61, 37), (-21, 37), (-21, -37)])  # lines 0-3
sketch28.addConstraint([
    Sketcher.Constraint("Vertical", 0),
    Sketcher.Constraint("Horizontal", 1),
    Sketcher.Constraint("Vertical", 2),
    Sketcher.Constraint("Horizontal", 3),
    Sketcher.Constraint("DistanceX", 1, 1, 1, 2, Q("40 mm")),
    Sketcher.Constraint("DistanceX", 0, 2, -1, 1, Q("61 mm")),
    Sketcher.Constraint("DistanceY", 0, 1, 0, 2, Q("73.27 mm")),
    Sketcher.Constraint("DistanceY", -1, 1, 0, 2, Q("36.59 mm")),
])
pocket15 = body.newObject("PartDesign::Pocket", "Pocket014")
pocket15.Profile = sketch28
pocket15.Type = "ThroughAll"
pocket15.Reversed = True

# Sketch on XY plane
sketch29 = body.newObject("Sketcher::SketchObject", "Sketch028")
sketch29.AttachmentSupport = (doc.getObject("XY_Plane"), [""])
sketch29.MapMode = "FlatFace"
sketch29.AttachmentOffset = App.Placement(V(0, 0, -36.68), App.Rotation())
add_polygon(sketch29, [(-8, 117), (-8, 97), (-21, 97), (-21, 117)])  # lines 0-3
sketch29.addConstraint([
    Sketcher.Constraint("Vertical", 0),
    Sketcher.Constraint("Horizontal", 1),
    Sketcher.Constraint("Vertical", 2),
    Sketcher.Constraint("Horizontal", 3),
    Sketcher.Constraint("DistanceY", 0, 2, 0, 1, Q("20 mm")),
    Sketcher.Constraint("DistanceX", 1, 2, -1, 1, Q("21 mm")),
    Sketcher.Constraint("DistanceY", -1, 1, 0, 2, Q("96.68 mm")),
    Sketcher.Constraint("DistanceX", 1, 2, 1, 1, Q("13.008512 mm")),
])
pad14 = body.newObject("PartDesign::Pad", "Pad013")
pad14.Profile = sketch29
pad14.Length = 3.08
pad14.Reversed = True

# Sketch on XY plane
sketch30 = body.newObject("Sketcher::SketchObject", "Sketch029")
sketch30.AttachmentSupport = (doc.getObject("XY_Plane"), [""])
sketch30.MapMode = "FlatFace"
sketch30.AttachmentOffset = App.Placement(V(0, 0, 50), App.Rotation())
add_polygon(sketch30, [(-23, 78), (-23, -18), (22, -18), (22, 78)])  # lines 0-3
sketch30.addConstraint([
    Sketcher.Constraint("Vertical", 0),
    Sketcher.Constraint("Horizontal", 1),
    Sketcher.Constraint("Vertical", 2),
    Sketcher.Constraint("Horizontal", 3),
    Sketcher.Constraint("DistanceX", 1, 1, 1, 2, Q("44.672015 mm")),
    Sketcher.Constraint("DistanceY", 0, 2, 0, 1, Q("95.939898 mm")),
    Sketcher.Constraint("DistanceX", 0, 2, -1, 1, Q("22.57096 mm")),
    Sketcher.Constraint("DistanceY", 0, 2, -1, 1, Q("18.308175 mm")),
])
pocket16 = body.newObject("PartDesign::Pocket", "Pocket015")
pocket16.Profile = sketch30
pocket16.Type = "ThroughAll"

# Sketch on XZ plane
sketch31 = body.newObject("Sketcher::SketchObject", "Sketch030")
sketch31.AttachmentSupport = (doc.getObject("XZ_Plane"), [""])
sketch31.MapMode = "FlatFace"
sketch31.AttachmentOffset = App.Placement(V(0, 0, -77.631723), App.Rotation())
sketch31.addGeometry(Part.Circle(V(0, 0, 0), V(0, 0, 1), 10), False)
sketch31.addConstraint([
    Sketcher.Constraint("Coincident", 0, 3, -1, 1),
    Sketcher.Constraint("Diameter", 0, Q("19.4 mm")),
])
pocket17 = body.newObject("PartDesign::Pocket", "Pocket016")
pocket17.Profile = sketch31
pocket17.Type = "ThroughAll"

# Sketch on XZ plane
sketch32 = body.newObject("Sketcher::SketchObject", "Sketch031")
sketch32.AttachmentSupport = (doc.getObject("XZ_Plane"), [""])
sketch32.MapMode = "FlatFace"
sketch32.AttachmentOffset = App.Placement(V(0, 0, -116.68), App.Rotation())
add_polygon(sketch32, [(-21, -40), (-21, 37), (-14, 37), (-14, -40)])  # lines 0-3
sketch32.addConstraint([
    Sketcher.Constraint("Vertical", 0),
    Sketcher.Constraint("Horizontal", 1),
    Sketcher.Constraint("Vertical", 2),
    Sketcher.Constraint("Horizontal", 3),
    Sketcher.Constraint("DistanceX", 0, 2, -1, 1, Q("21 mm")),
    Sketcher.Constraint("DistanceY", 0, 1, 0, 2, Q("76.35 mm")),
    Sketcher.Constraint("DistanceY", -1, 1, 0, 2, Q("36.59 mm")),
    Sketcher.Constraint("DistanceX", 1, 1, 1, 2, Q("6.504256 mm")),
])
pocket18 = body.newObject("PartDesign::Pocket", "Pocket017")
pocket18.Profile = sketch32
pocket18.Type = "ThroughAll"
pocket18.Reversed = True

# Sketch on XZ plane
sketch33 = body.newObject("Sketcher::SketchObject", "Sketch032")
sketch33.AttachmentSupport = (doc.getObject("XZ_Plane"), [""])
sketch33.MapMode = "FlatFace"
sketch33.AttachmentOffset = App.Placement(V(0, 0, -116.68), App.Rotation())
add_polygon(sketch33, [(1.9, 22.4), (1.9, 20.6), (-2.2, 20.6), (-2.2, 21.4)])  # lines 0-3
sketch33.addConstraint([
    Sketcher.Constraint("Vertical", 0),
    Sketcher.Constraint("Horizontal", 1),
    Sketcher.Constraint("Vertical", 2),
    Sketcher.Constraint("DistanceY", -1, 1, 0, 2, Q("20.59 mm")),
    Sketcher.Constraint("DistanceY", 0, 2, 0, 1, Q("1.809122 mm")),
    Sketcher.Constraint("DistanceX", 1, 2, 1, 1, Q("4.101442 mm")),
    Sketcher.Constraint("DistanceY", 2, 1, 2, 2, Q("0.831542 mm")),
    Sketcher.Constraint("DistanceX", -1, 1, 0, 2, Q("1.927252 mm")),
])
pocket19 = body.newObject("PartDesign::Pocket", "Pocket018")
pocket19.Profile = sketch33
pocket19.Length = 20
pocket19.Reversed = True

# Sketch on XZ plane
sketch34 = body.newObject("Sketcher::SketchObject", "Sketch033")
sketch34.AttachmentSupport = (doc.getObject("XZ_Plane"), [""])
sketch34.MapMode = "FlatFace"
sketch34.AttachmentOffset = App.Placement(V(0, 0, -116.68), App.Rotation())
add_polygon(sketch34, [(-8, 20.59), (-8, 20.68), (8.21, 20.68), (8.21, 20.59)])  # lines 0-3
sketch34.addConstraint([
    Sketcher.Constraint("Vertical", 0),
    Sketcher.Constraint("Horizontal", 1),
    Sketcher.Constraint("Vertical", 2),
    Sketcher.Constraint("Horizontal", 3),
    Sketcher.Constraint("DistanceX", 0, 2, -1, 1, Q("8 mm")),
    Sketcher.Constraint("DistanceY", 0, 1, 0, 2, Q("0.09 mm")),
    Sketcher.Constraint("DistanceY", -1, 1, 0, 2, Q("20.68 mm")),
    Sketcher.Constraint("DistanceX", 1, 1, 1, 2, Q("16.208512 mm")),
])
pad15 = body.newObject("PartDesign::Pad", "Pad014")
pad15.Profile = sketch34
pad15.Length = 20

# Sketch on XZ plane
sketch35 = body.newObject("Sketcher::SketchObject", "Sketch034")
sketch35.AttachmentSupport = (doc.getObject("XZ_Plane"), [""])
sketch35.MapMode = "FlatFace"
sketch35.AttachmentOffset = App.Placement(V(0, 0, -116.68), App.Rotation())
add_polygon(sketch35, [(-14.5, 16.5), (-14.5, 19.8), (-11, 19.8), (-11, 16.5)])  # lines 0-3
sketch35.addConstraint([
    Sketcher.Constraint("Vertical", 0),
    Sketcher.Constraint("Horizontal", 1),
    Sketcher.Constraint("Vertical", 2),
    Sketcher.Constraint("Horizontal", 3),
    Sketcher.Constraint("DistanceX", 1, 2, -1, 1, Q("11 mm")),
    Sketcher.Constraint("DistanceY", 0, 1, 0, 2, Q("3.26 mm")),
    Sketcher.Constraint("DistanceX", 1, 1, 1, 2, Q("3.495744 mm")),
    Sketcher.Constraint("DistanceY", -1, 1, 0, 2, Q("19.771779 mm")),
])
pocket20 = body.newObject("PartDesign::Pocket", "Pocket019")
pocket20.Profile = sketch35
pocket20.Type = "ThroughAll"
pocket20.Reversed = True

# Sketch on XZ plane
sketch36 = body.newObject("Sketcher::SketchObject", "Sketch035")
sketch36.AttachmentSupport = (doc.getObject("XZ_Plane"), [""])
sketch36.MapMode = "FlatFace"
sketch36.AttachmentOffset = App.Placement(V(0, 0, -96.48), App.Rotation())
add_polygon(sketch36, [(-14.5, 18), (-14.5, 19.8), (-11, 19.8), (-11, 18)])  # lines 0-3
add_polygon(sketch36, [(-14.5, -19.7), (-14.5, -17.9), (-11, -17.9), (-11, -19.7)])  # lines 4-7
sketch36.addConstraint([
    Sketcher.Constraint("Vertical", 0),
    Sketcher.Constraint("Horizontal", 1),
    Sketcher.Constraint("Vertical", 2),
    Sketcher.Constraint("Horizontal", 3),
    Sketcher.Constraint("Vertical", 4),
    Sketcher.Constraint("Horizontal", 5),
    Sketcher.Constraint("Vertical", 6),
    Sketcher.Constraint("Horizontal", 7),
    Sketcher.Constraint("Vertical", 3, 2, 4, 2),
    Sketcher.Constraint("DistanceX", 1, 2, -1, 1, Q("11 mm")),
    Sketcher.Constraint("DistanceY", 4, 2, 3, 2, Q("35.9 mm")),
    Sketcher.Constraint("DistanceY", 4, 1, 4, 2, Q("1.775 mm")),
    Sketcher.Constraint("DistanceY", 6, 2, -1, 1, Q("19.68 mm")),
    Sketcher.Constraint("DistanceY", 0, 1, 0, 2, Q("1.776779 mm")),
    Sketcher.Constraint("DistanceX", 1, 1, 1, 2, Q("3.495744 mm")),
    Sketcher.Constraint("DistanceX", 5, 1, 5, 2, Q("3.503635 mm")),
])
pad16 = body.newObject("PartDesign::Pad", "Pad015")
pad16.Profile = sketch36
pad16.Length = 20.2
pad16.Reversed = True

# Sketch on XZ plane
sketch37 = body.newObject("Sketcher::SketchObject", "Sketch036")
sketch37.AttachmentSupport = (doc.getObject("XZ_Plane"), [""])
sketch37.MapMode = "FlatFace"
sketch37.AttachmentOffset = App.Placement(V(0, 0, -116.68), App.Rotation())
add_polygon(sketch37, [(-14.5, -39.8), (-14.5, -36.1), (-8, -36.1), (-8, -39.8)])  # lines 0-3
sketch37.addConstraint([
    Sketcher.Constraint("Vertical", 0),
    Sketcher.Constraint("Horizontal", 1),
    Sketcher.Constraint("Vertical", 2),
    Sketcher.Constraint("Horizontal", 3),
    Sketcher.Constraint("DistanceY", 0, 1, 0, 2, Q("3.66 mm")),
    Sketcher.Constraint("DistanceY", 0, 2, -1, 1, Q("36.1 mm")),
    Sketcher.Constraint("DistanceX", 1, 1, 1, 2, Q("6.504256 mm")),
    Sketcher.Constraint("DistanceX", 1, 2, -1, 1, Q("7.991488 mm")),
])
pocket21 = body.newObject("PartDesign::Pocket", "Pocket020")
pocket21.Profile = sketch37
pocket21.Length = 20
pocket21.Reversed = True

# Sketch on YZ plane
sketch38 = body.newObject("Sketcher::SketchObject", "Sketch037")
sketch38.AttachmentSupport = (doc.getObject("YZ_Plane"), [""])
sketch38.MapMode = "FlatFace"
sketch38.AttachmentOffset = App.Placement(V(0, 0, -7.991488), App.Rotation())
sketch38.addGeometry([
    Part.Circle(V(106.7, -28.4, 0), V(0, 0, 1), 3),
    Part.Circle(V(106.7, 28.6, 0), V(0, 0, 1), 3),
], False)
sketch38.addConstraint([
    Sketcher.Constraint("Equal", 0, 1),
    Sketcher.Constraint("Vertical", 0, 3, 1, 3),
    Sketcher.Constraint("Diameter", 0, Q("5.97 mm")),
    Sketcher.Constraint("DistanceX", -1, 1, 0, 3, Q("106.68 mm")),
    Sketcher.Constraint("DistanceY", 0, 3, -1, 1, Q("28.39 mm")),
    Sketcher.Constraint("DistanceY", -1, 1, 1, 3, Q("28.635 mm")),
])
pocket22 = body.newObject("PartDesign::Pocket", "Pocket021")
pocket22.Profile = sketch38
pocket22.Type = "ThroughAll"

# Sketch on XY plane
sketch39 = body.newObject("Sketcher::SketchObject", "Sketch038")
sketch39.AttachmentSupport = (doc.getObject("XY_Plane"), [""])
sketch39.MapMode = "FlatFace"
sketch39.AttachmentOffset = App.Placement(V(0, 0, 20.59), App.Rotation())
sketch39.addGeometry(Part.Circle(V(-1.4, 108.7, 0), V(0, 0, 1), 3), False)
sketch39.addConstraint([
    Sketcher.Constraint("Diameter", 0, Q("5.97 mm")),
    Sketcher.Constraint("DistanceY", -1, 1, 0, 3, Q("108.73 mm")),
    Sketcher.Constraint("DistanceX", 0, 3, -1, 1, Q("1.391488 mm")),
])
pocket23 = body.newObject("PartDesign::Pocket", "Pocket022")
pocket23.Profile = sketch39
pocket23.Type = "ThroughAll"
pocket23.Reversed = True

doc.recompute()
